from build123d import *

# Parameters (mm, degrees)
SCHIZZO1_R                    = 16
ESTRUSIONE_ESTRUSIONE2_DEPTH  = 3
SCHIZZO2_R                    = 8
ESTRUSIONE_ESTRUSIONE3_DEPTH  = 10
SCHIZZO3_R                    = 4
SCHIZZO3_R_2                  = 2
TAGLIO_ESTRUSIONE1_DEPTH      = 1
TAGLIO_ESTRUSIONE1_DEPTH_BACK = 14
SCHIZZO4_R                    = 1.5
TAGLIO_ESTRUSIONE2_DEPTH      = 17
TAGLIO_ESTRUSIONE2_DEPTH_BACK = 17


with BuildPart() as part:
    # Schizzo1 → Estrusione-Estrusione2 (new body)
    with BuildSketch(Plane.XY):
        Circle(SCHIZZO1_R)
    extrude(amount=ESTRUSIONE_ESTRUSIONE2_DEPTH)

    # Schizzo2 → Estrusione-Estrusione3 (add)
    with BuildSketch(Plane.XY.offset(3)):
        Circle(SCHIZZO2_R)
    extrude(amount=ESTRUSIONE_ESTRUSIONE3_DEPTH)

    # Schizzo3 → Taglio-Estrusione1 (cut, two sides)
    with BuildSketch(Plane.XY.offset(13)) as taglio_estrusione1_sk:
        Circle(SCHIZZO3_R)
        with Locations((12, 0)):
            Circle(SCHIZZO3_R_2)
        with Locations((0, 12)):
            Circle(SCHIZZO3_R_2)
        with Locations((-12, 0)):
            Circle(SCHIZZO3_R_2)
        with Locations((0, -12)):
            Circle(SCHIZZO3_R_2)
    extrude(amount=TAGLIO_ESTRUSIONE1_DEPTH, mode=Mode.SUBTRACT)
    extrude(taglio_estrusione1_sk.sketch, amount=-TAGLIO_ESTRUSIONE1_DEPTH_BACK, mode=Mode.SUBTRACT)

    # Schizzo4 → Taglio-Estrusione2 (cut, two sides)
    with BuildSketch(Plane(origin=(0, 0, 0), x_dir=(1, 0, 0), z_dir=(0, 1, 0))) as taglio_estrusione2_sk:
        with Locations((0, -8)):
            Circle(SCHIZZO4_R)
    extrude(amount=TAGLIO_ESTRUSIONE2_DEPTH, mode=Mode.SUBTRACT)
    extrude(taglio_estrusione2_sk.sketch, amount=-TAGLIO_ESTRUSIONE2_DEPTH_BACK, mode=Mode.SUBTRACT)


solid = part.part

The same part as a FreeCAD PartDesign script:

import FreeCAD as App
import Part
import Sketcher

V = App.Vector
Q = App.Units.Quantity

doc = App.newDocument("Part")
body = doc.addObject("PartDesign::Body", "Body")

# Sketch on XY plane
sketch1 = doc.addObject("Sketcher::SketchObject", "Sketch")
body.addObject(sketch1)
sketch1.AttachmentSupport = (doc.XY_Plane, [""])
sketch1.MapMode = "FlatFace"
sketch1.addGeometry(Part.Circle(V(0, 0, 0), V(0, 0, 1), 16), False)
sketch1.addConstraint([
    Sketcher.Constraint("Coincident", 0, 3, -1, 1),
    Sketcher.Constraint("Diameter", 0, Q("32 mm")),
])
pad1 = doc.addObject("PartDesign::Pad", "Pad")
body.addObject(pad1)
pad1.Profile = sketch1
pad1.Length = 3

# Sketch on XY plane
sketch2 = doc.addObject("Sketcher::SketchObject", "Sketch001")
body.addObject(sketch2)
sketch2.AttachmentSupport = (doc.XY_Plane, [""])
sketch2.MapMode = "FlatFace"
sketch2.AttachmentOffset = App.Placement(V(0, 0, 3), App.Rotation())
sketch2.addGeometry(Part.Circle(V(0, 0, 0), V(0, 0, 1), 8), False)
sketch2.addConstraint([
    Sketcher.Constraint("Coincident", 0, 3, -1, 1),
    Sketcher.Constraint("Diameter", 0, Q("16 mm")),
])
pad2 = doc.addObject("PartDesign::Pad", "Pad001")
body.addObject(pad2)
pad2.Profile = sketch2
pad2.Length = 10

# Sketch on XY plane
sketch3 = doc.addObject("Sketcher::SketchObject", "Sketch002")
body.addObject(sketch3)
sketch3.AttachmentSupport = (doc.XY_Plane, [""])
sketch3.MapMode = "FlatFace"
sketch3.AttachmentOffset = App.Placement(V(0, 0, 13), App.Rotation())
sketch3.addGeometry([
    Part.Circle(V(0, 0, 0), V(0, 0, 1), 4),  # 0
    Part.Circle(V(12, 0, 0), V(0, 0, 1), 2),  # 1
    Part.Circle(V(0, 12, 0), V(0, 0, 1), 2),  # 2
    Part.Circle(V(-12, 0, 0), V(0, 0, 1), 2),  # 3
    Part.Circle(V(0, -12, 0), V(0, 0, 1), 2),  # 4
], False)
sketch3.addConstraint([
    Sketcher.Constraint("Coincident", 0, 3, -1, 1),
    Sketcher.Constraint("Equal", 1, 2),
    Sketcher.Constraint("Equal", 2, 3),
    Sketcher.Constraint("Equal", 3, 4),
    Sketcher.Constraint("Symmetric", 1, 3, 3, 3, -1, 1),
    Sketcher.Constraint("Symmetric", 2, 3, 4, 3, -1, 1),
    Sketcher.Constraint("PointOnObject", 1, 3, -1),
    Sketcher.Constraint("PointOnObject", 2, 3, -2),
    Sketcher.Constraint("Diameter", 0, Q("8 mm")),
    Sketcher.Constraint("Diameter", 1, Q("4 mm")),
    Sketcher.Constraint("DistanceX", -1, 1, 1, 3, Q("12 mm")),
    Sketcher.Constraint("DistanceY", -1, 1, 2, 3, Q("12 mm")),
])
pocket1 = doc.addObject("PartDesign::Pocket", "Pocket")
body.addObject(pocket1)
pocket1.Profile = sketch3
pocket1.Type = "ThroughAll"
pocket1.Midplane = True

# Sketch on XZ plane
sketch4 = doc.addObject("Sketcher::SketchObject", "Sketch003")
body.addObject(sketch4)
sketch4.AttachmentSupport = (doc.XZ_Plane, [""])
sketch4.MapMode = "FlatFace"
sketch4.addGeometry(Part.Circle(V(0, 8, 0), V(0, 0, 1), 1.5), False)
sketch4.addConstraint([
    Sketcher.Constraint("PointOnObject", 0, 3, -2),
    Sketcher.Constraint("Diameter", 0, Q("3 mm")),
    Sketcher.Constraint("DistanceY", -1, 1, 0, 3, Q("8 mm")),
])
pocket2 = doc.addObject("PartDesign::Pocket", "Pocket001")
body.addObject(pocket2)
pocket2.Profile = sketch4
pocket2.Type = "ThroughAll"
pocket2.Midplane = True

doc.recompute()
